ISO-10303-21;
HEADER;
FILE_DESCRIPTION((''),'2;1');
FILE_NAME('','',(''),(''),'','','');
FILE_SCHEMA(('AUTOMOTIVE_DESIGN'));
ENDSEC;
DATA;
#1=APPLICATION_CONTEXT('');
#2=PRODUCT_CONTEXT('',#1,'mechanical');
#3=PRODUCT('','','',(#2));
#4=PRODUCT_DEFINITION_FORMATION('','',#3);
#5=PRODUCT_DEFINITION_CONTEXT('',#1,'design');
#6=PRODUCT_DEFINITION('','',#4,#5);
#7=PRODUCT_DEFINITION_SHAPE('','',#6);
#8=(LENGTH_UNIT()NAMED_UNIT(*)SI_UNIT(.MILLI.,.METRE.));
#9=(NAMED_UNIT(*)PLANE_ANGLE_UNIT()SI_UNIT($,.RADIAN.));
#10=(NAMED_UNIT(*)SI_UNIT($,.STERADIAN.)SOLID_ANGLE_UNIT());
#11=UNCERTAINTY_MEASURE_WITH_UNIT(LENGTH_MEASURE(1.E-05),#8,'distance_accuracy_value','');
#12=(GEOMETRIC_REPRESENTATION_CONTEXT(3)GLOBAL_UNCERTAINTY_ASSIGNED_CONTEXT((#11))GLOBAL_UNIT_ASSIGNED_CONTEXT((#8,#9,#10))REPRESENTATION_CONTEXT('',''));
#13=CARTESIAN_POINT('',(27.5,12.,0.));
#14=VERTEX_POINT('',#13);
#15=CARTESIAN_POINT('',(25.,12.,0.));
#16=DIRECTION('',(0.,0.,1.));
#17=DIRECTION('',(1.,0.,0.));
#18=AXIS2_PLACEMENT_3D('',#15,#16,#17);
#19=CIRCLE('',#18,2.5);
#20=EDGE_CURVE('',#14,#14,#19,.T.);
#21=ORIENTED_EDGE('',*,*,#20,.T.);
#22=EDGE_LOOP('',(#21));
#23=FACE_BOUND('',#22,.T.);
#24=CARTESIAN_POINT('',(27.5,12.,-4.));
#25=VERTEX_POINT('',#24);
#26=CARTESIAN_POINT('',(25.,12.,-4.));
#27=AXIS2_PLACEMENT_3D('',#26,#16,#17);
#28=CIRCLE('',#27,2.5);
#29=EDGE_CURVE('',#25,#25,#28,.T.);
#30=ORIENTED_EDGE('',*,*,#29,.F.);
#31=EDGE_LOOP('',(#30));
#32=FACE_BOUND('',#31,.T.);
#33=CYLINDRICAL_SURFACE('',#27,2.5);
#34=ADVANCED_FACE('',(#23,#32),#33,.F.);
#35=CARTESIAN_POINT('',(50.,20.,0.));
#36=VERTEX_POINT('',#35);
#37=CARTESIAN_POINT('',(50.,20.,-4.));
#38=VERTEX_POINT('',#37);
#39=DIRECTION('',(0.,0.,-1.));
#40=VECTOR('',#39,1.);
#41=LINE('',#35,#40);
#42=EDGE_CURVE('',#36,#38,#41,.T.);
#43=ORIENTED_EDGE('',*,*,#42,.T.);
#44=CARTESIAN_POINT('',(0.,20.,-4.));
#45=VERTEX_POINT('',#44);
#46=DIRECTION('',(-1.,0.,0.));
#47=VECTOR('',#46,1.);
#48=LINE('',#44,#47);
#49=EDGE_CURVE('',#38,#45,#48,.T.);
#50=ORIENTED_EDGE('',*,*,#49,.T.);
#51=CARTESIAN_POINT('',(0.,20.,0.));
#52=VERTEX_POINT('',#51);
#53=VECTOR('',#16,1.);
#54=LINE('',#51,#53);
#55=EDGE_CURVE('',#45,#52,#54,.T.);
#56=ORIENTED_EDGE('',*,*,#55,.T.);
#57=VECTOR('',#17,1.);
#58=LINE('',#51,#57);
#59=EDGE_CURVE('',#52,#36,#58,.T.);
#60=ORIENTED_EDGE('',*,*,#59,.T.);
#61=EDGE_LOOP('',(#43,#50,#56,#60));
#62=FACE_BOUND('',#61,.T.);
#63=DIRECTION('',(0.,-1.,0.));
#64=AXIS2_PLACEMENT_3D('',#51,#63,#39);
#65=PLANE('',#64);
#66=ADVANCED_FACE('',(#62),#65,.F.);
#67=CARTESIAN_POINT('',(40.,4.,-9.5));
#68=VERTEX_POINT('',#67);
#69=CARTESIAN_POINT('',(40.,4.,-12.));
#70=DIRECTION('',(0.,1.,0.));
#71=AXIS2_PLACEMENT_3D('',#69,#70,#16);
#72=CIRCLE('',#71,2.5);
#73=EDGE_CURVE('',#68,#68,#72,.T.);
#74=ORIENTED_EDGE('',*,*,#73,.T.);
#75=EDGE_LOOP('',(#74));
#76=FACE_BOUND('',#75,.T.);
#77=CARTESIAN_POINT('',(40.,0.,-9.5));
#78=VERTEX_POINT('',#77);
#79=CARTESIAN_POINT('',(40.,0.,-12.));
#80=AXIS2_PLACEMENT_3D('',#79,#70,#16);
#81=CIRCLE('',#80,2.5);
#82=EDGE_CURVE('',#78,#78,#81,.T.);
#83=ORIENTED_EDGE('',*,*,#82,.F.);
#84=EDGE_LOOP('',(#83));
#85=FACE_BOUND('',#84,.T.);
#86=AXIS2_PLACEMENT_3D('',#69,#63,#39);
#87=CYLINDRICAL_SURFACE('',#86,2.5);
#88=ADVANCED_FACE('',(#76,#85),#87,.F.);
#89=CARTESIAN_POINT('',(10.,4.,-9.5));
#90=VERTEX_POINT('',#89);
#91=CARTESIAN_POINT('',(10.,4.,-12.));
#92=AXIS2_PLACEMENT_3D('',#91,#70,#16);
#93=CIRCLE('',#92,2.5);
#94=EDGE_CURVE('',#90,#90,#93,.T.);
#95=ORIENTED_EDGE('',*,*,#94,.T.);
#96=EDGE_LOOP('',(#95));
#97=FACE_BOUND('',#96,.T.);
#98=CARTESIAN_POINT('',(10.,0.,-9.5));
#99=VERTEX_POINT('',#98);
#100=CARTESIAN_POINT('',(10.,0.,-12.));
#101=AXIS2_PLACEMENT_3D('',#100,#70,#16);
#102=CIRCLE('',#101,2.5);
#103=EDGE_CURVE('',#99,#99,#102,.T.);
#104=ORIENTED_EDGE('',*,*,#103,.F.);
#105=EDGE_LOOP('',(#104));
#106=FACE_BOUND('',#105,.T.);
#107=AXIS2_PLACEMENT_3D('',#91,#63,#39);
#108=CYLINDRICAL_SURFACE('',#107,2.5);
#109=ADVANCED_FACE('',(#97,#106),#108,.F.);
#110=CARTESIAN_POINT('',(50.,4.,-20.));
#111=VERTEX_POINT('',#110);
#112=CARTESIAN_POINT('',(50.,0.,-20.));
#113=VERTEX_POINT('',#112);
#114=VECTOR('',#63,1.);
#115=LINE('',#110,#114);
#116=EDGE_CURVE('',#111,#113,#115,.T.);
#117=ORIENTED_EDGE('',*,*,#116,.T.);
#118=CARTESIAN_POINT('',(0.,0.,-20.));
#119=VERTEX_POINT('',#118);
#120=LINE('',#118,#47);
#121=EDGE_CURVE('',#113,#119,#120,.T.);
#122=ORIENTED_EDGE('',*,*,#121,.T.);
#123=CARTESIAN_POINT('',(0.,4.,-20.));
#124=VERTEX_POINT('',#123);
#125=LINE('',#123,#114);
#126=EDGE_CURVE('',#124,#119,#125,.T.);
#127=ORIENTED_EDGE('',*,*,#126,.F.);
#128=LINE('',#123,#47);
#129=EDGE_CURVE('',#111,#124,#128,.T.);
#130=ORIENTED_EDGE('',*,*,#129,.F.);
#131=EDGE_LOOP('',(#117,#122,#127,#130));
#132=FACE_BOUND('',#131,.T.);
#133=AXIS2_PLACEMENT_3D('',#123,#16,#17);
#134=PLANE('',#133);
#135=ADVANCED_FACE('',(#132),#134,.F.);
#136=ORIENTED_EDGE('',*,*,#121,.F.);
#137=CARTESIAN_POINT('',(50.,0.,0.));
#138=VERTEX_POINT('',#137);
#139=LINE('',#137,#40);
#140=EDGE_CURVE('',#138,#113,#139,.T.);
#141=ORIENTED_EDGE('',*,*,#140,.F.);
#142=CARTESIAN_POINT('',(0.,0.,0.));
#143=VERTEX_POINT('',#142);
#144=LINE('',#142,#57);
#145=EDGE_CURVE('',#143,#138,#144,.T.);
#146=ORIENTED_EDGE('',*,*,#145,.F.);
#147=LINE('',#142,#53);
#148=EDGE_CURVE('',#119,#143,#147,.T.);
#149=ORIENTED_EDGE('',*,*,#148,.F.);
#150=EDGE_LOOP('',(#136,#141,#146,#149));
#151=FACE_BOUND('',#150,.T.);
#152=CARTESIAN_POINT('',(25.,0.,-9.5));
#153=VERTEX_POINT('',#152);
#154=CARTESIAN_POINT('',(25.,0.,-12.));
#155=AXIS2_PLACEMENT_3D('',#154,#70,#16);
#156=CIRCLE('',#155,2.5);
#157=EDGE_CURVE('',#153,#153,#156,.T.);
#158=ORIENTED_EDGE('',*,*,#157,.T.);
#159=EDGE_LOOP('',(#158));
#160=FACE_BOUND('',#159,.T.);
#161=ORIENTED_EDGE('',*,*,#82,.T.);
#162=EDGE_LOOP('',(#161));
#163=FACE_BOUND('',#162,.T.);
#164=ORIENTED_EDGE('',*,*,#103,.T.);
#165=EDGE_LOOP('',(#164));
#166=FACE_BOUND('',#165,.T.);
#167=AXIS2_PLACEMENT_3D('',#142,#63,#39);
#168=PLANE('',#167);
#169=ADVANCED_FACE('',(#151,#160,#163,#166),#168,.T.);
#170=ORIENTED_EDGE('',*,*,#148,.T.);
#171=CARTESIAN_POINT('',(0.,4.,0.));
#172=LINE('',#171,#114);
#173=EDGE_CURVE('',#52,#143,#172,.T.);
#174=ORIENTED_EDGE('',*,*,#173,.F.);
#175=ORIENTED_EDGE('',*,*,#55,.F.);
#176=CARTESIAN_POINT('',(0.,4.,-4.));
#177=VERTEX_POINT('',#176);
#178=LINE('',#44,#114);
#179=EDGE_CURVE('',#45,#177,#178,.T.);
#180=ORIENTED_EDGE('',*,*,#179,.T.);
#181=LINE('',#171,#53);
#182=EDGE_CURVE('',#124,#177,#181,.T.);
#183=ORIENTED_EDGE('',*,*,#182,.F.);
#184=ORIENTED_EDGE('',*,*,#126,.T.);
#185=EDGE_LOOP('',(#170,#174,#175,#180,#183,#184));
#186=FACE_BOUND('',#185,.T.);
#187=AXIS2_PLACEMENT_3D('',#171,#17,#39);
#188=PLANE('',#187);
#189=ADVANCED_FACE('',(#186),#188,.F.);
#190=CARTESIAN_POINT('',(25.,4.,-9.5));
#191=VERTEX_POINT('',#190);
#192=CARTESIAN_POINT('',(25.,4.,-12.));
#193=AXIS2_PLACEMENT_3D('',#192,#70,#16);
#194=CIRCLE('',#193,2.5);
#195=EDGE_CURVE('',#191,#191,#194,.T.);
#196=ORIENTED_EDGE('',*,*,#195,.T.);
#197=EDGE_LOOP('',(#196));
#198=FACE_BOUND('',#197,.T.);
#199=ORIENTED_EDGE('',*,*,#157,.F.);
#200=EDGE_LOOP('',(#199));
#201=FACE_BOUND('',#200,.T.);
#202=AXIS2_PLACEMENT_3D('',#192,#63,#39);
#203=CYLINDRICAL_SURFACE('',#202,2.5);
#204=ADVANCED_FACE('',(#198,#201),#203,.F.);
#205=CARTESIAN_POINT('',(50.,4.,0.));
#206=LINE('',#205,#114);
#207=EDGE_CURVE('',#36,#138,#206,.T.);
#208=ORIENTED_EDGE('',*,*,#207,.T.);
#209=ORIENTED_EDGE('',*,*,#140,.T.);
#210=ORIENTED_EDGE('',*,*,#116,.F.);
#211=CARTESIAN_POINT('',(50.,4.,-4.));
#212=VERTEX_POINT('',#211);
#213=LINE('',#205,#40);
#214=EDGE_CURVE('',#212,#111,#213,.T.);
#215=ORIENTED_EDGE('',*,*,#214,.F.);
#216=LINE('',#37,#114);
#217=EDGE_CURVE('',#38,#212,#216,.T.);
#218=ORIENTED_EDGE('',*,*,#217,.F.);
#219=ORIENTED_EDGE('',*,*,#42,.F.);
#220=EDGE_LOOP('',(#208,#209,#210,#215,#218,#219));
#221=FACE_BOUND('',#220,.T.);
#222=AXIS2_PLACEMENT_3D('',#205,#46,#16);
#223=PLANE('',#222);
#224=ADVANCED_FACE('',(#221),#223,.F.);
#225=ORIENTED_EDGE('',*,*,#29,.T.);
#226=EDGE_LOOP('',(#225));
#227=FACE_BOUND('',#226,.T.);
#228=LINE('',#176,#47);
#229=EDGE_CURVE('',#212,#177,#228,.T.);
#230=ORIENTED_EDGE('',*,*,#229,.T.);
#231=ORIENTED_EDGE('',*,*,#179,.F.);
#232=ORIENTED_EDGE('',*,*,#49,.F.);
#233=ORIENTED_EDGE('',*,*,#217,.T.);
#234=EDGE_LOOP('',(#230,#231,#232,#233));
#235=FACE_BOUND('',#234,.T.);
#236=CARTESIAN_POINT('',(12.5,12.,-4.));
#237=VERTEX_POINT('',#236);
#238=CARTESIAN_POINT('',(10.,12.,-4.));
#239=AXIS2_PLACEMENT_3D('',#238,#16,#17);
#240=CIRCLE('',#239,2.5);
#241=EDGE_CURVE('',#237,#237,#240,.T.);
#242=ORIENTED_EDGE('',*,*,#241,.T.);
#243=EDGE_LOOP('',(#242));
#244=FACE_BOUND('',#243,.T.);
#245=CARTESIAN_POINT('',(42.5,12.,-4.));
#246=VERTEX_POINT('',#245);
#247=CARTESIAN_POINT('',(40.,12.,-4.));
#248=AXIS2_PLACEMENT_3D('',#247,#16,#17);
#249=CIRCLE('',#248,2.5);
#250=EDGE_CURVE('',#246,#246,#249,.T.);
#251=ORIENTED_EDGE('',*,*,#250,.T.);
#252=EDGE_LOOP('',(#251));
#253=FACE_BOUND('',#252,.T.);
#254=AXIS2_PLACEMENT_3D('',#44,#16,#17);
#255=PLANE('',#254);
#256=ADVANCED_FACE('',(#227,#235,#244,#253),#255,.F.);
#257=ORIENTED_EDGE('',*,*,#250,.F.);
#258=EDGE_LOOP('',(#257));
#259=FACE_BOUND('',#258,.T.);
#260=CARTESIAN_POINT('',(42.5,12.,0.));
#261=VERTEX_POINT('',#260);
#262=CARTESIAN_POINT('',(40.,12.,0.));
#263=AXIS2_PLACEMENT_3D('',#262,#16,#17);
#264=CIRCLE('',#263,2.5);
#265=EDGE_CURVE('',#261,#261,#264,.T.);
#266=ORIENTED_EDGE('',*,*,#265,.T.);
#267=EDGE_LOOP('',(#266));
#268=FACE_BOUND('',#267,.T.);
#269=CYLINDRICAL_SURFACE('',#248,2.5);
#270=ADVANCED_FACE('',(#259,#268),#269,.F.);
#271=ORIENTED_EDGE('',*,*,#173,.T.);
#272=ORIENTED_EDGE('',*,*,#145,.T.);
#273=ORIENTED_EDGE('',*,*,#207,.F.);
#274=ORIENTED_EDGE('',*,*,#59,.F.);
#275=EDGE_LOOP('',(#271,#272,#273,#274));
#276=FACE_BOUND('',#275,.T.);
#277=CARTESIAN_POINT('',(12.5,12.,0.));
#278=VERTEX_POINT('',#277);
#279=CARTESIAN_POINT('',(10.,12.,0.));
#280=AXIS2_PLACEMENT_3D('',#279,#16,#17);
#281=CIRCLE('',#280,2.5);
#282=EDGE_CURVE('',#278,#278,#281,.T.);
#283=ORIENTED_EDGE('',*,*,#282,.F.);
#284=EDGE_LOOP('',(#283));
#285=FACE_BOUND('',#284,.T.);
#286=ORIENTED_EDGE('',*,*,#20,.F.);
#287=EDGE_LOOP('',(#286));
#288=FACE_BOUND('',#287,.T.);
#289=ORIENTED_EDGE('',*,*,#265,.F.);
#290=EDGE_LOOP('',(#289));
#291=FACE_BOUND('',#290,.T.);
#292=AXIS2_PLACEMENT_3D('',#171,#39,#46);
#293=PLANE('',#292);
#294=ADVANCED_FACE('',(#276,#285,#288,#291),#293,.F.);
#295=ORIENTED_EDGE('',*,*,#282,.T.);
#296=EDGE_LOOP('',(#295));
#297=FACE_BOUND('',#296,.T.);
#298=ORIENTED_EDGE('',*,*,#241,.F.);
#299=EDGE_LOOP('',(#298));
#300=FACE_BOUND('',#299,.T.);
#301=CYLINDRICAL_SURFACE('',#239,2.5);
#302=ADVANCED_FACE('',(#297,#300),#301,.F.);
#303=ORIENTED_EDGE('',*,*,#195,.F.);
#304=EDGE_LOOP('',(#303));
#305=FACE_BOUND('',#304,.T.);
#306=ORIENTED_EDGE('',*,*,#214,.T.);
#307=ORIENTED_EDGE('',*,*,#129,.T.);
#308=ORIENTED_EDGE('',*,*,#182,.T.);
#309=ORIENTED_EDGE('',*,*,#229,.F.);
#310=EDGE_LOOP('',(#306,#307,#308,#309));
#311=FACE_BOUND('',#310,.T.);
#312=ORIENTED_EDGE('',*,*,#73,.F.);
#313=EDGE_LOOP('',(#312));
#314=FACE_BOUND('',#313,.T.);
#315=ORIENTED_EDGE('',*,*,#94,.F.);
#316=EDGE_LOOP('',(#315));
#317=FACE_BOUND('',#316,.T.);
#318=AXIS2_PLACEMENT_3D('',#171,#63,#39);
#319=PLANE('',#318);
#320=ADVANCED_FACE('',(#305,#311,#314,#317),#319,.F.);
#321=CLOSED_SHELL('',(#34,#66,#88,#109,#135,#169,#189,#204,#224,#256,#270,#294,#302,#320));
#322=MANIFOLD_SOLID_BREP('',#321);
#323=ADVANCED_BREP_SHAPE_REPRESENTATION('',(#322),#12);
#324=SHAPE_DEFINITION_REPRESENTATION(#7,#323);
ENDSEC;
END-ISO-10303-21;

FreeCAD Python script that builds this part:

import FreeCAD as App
import Part
import Sketcher


def add_polygon(sketch, points):
    """Adds a closed chain of lines whose ends are joined by coincident constraints."""
    first, n = sketch.GeometryCount, len(points)
    for a, b in zip(points, points[1:] + points[:1]):
        sketch.addGeometry(Part.LineSegment(App.Vector(*a, 0), App.Vector(*b, 0)), False)
    for i in range(n):
        sketch.addConstraint(Sketcher.Constraint("Coincident", first + i, 2, first + (i + 1) % n, 1))

doc = App.newDocument("Part")
body = doc.addObject("PartDesign::Body", "Body")

sketch1 = body.newObject("Sketcher::SketchObject", "Sketch")
sketch1.AttachmentSupport = (doc.getObject("XZ_Plane"), [""])
sketch1.MapMode = "FlatFace"
add_polygon(sketch1, [(0, -20), (0, 0), (50, 0), (50, -20)])
sketch1.addGeometry(Part.Circle(App.Vector(10, -12, 0), App.Vector(0, 0, 1), 2.5), False)
sketch1.addGeometry(Part.Circle(App.Vector(25, -12, 0), App.Vector(0, 0, 1), 2.5), False)
sketch1.addGeometry(Part.Circle(App.Vector(40, -12, 0), App.Vector(0, 0, 1), 2.5), False)
sketch1.addConstraint([
    Sketcher.Constraint("Vertical", 0),
    Sketcher.Constraint("Horizontal", 1),
    Sketcher.Constraint("Vertical", 2),
    Sketcher.Constraint("Horizontal", 3),
    Sketcher.Constraint("Coincident", 0, 2, -1, 1),
    Sketcher.Constraint("Equal", 4, 5),
    Sketcher.Constraint("Equal", 5, 6),
    Sketcher.Constraint("Horizontal", 4, 3, 5, 3),
    Sketcher.Constraint("Horizontal", 5, 3, 6, 3),
    Sketcher.Constraint("Diameter", 4, 5.0),
    Sketcher.Constraint("DistanceX", 1, 1, 1, 2, 50.0),
    Sketcher.Constraint("DistanceY", 0, 1, 0, 2, 20.0),
    Sketcher.Constraint("DistanceX", -1, 1, 4, 3, 10.0),
    Sketcher.Constraint("DistanceY", 4, 3, -1, 1, 12.0),
    Sketcher.Constraint("DistanceX", -1, 1, 5, 3, 25.0),
    Sketcher.Constraint("DistanceX", -1, 1, 6, 3, 40.0),
])
pad1 = body.newObject("PartDesign::Pad", "Pad")
pad1.Profile = sketch1
pad1.Length = 4
pad1.Reversed = True

sketch2 = body.newObject("Sketcher::SketchObject", "Sketch001")
sketch2.AttachmentSupport = (doc.getObject("XZ_Plane"), [""])
sketch2.MapMode = "FlatFace"
sketch2.AttachmentOffset = App.Placement(App.Vector(0, 0, -4), App.Rotation())
add_polygon(sketch2, [(0, -4), (0, 0), (50, 0), (50, -4)])
sketch2.addConstraint([
    Sketcher.Constraint("Vertical", 0),
    Sketcher.Constraint("Horizontal", 1),
    Sketcher.Constraint("Vertical", 2),
    Sketcher.Constraint("Horizontal", 3),
    Sketcher.Constraint("Coincident", 0, 2, -1, 1),
    Sketcher.Constraint("DistanceX", 1, 1, 1, 2, 50.0),
    Sketcher.Constraint("DistanceY", 0, 1, 0, 2, 4.0),
])
pad2 = body.newObject("PartDesign::Pad", "Pad001")
pad2.Profile = sketch2
pad2.Length = 16
pad2.Reversed = True

sketch3 = body.newObject("Sketcher::SketchObject", "Sketch002")
sketch3.AttachmentSupport = (doc.getObject("XY_Plane"), [""])
sketch3.MapMode = "FlatFace"
sketch3.addGeometry([
    Part.Circle(App.Vector(10, 12, 0), App.Vector(0, 0, 1), 2.5),
    Part.Circle(App.Vector(40, 12, 0), App.Vector(0, 0, 1), 2.5),
    Part.Circle(App.Vector(25, 12, 0), App.Vector(0, 0, 1), 2.5),
], False)
sketch3.addConstraint([
    Sketcher.Constraint("Equal", 0, 1),
    Sketcher.Constraint("Equal", 1, 2),
    Sketcher.Constraint("Horizontal", 0, 3, 1, 3),
    Sketcher.Constraint("Horizontal", 1, 3, 2, 3),
    Sketcher.Constraint("Diameter", 0, 5.0),
    Sketcher.Constraint("DistanceX", -1, 1, 0, 3, 10.0),
    Sketcher.Constraint("DistanceY", -1, 1, 0, 3, 12.0),
    Sketcher.Constraint("DistanceX", -1, 1, 1, 3, 40.0),
    Sketcher.Constraint("DistanceX", -1, 1, 2, 3, 25.0),
])
pocket1 = body.newObject("PartDesign::Pocket", "Pocket")
pocket1.Profile = sketch3
pocket1.Length = 4

doc.recompute()
